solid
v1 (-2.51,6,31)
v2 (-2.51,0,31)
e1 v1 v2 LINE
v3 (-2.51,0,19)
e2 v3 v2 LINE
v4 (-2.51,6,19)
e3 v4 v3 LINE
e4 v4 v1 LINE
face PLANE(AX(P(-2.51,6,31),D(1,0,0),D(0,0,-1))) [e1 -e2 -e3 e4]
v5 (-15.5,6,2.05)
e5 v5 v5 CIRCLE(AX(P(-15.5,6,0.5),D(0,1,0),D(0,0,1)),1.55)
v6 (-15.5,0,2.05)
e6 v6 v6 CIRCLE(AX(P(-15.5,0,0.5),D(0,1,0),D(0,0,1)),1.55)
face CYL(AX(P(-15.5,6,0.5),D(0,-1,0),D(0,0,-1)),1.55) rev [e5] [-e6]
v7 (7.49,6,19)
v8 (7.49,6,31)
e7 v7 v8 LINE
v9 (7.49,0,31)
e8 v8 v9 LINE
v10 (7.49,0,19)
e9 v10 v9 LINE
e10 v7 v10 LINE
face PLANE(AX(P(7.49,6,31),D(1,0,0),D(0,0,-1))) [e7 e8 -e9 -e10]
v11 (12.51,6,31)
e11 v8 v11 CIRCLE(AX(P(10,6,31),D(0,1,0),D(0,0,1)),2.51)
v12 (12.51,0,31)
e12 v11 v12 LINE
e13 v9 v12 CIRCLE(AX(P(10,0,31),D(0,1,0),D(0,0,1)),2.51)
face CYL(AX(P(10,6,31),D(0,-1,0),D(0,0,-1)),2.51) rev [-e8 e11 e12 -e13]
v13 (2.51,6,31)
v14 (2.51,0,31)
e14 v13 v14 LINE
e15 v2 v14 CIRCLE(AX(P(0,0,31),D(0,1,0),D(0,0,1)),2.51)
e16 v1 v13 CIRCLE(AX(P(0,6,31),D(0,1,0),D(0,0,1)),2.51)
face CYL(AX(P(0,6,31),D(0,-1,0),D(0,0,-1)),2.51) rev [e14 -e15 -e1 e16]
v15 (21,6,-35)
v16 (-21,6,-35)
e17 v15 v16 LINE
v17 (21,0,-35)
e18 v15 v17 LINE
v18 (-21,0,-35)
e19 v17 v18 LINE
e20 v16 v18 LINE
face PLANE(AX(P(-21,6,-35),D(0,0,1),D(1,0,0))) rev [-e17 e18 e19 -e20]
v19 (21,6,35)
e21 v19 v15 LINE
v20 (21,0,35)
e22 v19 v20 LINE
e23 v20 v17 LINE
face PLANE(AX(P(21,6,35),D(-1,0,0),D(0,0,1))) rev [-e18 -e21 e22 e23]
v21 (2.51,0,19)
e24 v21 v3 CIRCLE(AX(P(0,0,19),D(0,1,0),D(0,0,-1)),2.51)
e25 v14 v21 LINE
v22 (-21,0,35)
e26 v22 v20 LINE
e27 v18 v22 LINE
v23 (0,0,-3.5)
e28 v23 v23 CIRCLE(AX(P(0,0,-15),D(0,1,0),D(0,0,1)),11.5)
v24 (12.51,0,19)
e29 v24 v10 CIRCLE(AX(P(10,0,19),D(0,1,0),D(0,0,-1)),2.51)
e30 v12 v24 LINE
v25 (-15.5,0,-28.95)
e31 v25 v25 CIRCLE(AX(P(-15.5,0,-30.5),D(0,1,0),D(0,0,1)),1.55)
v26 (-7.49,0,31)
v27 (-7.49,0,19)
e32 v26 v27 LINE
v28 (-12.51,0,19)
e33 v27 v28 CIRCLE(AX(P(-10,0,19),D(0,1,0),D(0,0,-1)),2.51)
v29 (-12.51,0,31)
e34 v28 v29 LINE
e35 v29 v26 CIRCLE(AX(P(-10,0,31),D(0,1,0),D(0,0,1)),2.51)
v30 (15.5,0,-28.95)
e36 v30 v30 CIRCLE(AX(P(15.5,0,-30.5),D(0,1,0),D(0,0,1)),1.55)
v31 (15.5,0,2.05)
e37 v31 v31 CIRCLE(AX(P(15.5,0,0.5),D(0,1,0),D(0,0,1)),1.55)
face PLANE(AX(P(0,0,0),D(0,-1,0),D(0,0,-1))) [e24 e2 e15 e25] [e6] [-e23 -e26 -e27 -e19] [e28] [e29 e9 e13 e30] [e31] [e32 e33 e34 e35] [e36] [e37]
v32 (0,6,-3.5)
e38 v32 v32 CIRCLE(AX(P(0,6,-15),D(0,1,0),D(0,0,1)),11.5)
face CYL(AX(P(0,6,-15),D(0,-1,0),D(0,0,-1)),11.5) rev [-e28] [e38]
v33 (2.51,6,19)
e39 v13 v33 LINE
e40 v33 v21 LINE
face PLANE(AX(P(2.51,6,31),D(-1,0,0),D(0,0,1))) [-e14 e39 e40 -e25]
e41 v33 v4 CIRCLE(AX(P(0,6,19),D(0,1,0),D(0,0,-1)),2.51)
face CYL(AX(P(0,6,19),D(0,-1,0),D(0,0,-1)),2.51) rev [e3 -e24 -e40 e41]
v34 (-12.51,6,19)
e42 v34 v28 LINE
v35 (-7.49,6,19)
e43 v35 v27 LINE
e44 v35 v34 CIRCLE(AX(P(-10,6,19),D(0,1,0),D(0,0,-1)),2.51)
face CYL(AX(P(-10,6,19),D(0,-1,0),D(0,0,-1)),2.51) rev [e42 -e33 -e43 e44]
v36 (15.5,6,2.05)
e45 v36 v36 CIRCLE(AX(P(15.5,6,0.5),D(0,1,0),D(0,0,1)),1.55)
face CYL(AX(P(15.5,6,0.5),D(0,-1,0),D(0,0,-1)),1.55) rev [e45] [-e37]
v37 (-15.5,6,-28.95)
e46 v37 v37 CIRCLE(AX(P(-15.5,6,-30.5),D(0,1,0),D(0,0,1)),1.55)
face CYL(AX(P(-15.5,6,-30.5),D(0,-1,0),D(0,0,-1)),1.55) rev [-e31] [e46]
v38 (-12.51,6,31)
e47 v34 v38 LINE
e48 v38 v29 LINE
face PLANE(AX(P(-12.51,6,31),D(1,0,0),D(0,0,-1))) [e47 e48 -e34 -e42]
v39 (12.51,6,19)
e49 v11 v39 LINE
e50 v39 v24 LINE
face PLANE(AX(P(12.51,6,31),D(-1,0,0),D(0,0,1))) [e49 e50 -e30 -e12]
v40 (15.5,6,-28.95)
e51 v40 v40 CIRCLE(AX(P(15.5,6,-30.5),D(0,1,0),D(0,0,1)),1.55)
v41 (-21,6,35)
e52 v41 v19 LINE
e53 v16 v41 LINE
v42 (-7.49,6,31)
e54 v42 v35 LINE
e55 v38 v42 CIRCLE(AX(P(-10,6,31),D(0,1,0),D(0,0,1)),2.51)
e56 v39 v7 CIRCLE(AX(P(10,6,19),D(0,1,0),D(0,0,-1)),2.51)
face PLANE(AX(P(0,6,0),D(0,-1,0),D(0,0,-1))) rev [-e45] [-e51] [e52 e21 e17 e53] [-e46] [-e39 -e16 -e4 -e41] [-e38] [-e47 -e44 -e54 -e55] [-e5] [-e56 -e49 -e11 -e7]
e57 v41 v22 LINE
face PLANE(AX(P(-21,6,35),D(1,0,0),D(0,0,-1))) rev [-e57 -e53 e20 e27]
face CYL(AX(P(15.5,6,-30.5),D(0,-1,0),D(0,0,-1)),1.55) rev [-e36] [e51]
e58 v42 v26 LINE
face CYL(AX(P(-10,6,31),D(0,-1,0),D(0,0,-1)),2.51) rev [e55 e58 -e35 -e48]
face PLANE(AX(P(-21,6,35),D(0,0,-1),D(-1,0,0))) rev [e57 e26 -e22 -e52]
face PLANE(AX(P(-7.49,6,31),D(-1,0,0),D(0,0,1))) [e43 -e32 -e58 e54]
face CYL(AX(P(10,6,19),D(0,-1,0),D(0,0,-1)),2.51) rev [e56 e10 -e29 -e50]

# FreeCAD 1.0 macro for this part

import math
import FreeCAD as App
import Part
import Sketcher


def add_polygon(sketch, points):
    """Adds a closed chain of lines whose ends are joined by coincident constraints."""
    first, n = sketch.GeometryCount, len(points)
    for a, b in zip(points, points[1:] + points[:1]):
        sketch.addGeometry(Part.LineSegment(App.Vector(*a, 0), App.Vector(*b, 0)), False)
    for i in range(n):
        sketch.addConstraint(Sketcher.Constraint("Coincident", first + i, 2, first + (i + 1) % n, 1))

doc = App.newDocument("Part")
body = doc.addObject("PartDesign::Body", "Body")

sketch1 = body.newObject("Sketcher::SketchObject", "Sketch")
sketch1.AttachmentSupport = (doc.getObject("XZ_Plane"), [""])
sketch1.MapMode = "FlatFace"
add_polygon(sketch1, [(-21, -35), (-21, 35), (21, 35), (21, -35)])
sketch1.addGeometry(Part.LineSegment(App.Vector(-7.5, 19, 0), App.Vector(-7.5, 31, 0)), False)
sketch1.addGeometry(Part.ArcOfCircle(Part.Circle(App.Vector(-10, 31, 0), App.Vector(0, 0, 1), 2.5), math.radians(0), math.radians(180)), False)
sketch1.addGeometry(Part.LineSegment(App.Vector(-12.5, 31, 0), App.Vector(-12.5, 19, 0)), False)
sketch1.addGeometry(Part.ArcOfCircle(Part.Circle(App.Vector(-10, 19, 0), App.Vector(0, 0, 1), 2.5), math.radians(180), math.radians(360)), False)
sketch1.addGeometry(Part.ArcOfCircle(Part.Circle(App.Vector(0, 31, 0), App.Vector(0, 0, 1), 2.5), math.radians(0), math.radians(180)), False)
sketch1.addGeometry(Part.LineSegment(App.Vector(-2.5, 31, 0), App.Vector(-2.5, 19, 0)), False)
sketch1.addGeometry(Part.ArcOfCircle(Part.Circle(App.Vector(0, 19, 0), App.Vector(0, 0, 1), 2.5), math.radians(180), math.radians(360)), False)
sketch1.addGeometry(Part.LineSegment(App.Vector(2.5, 19, 0), App.Vector(2.5, 31, 0)), False)
sketch1.addGeometry(Part.ArcOfCircle(Part.Circle(App.Vector(10, 31, 0), App.Vector(0, 0, 1), 2.5), math.radians(0), math.radians(180)), False)
sketch1.addGeometry(Part.LineSegment(App.Vector(7.5, 31, 0), App.Vector(7.5, 19, 0)), False)
sketch1.addGeometry(Part.ArcOfCircle(Part.Circle(App.Vector(10, 19, 0), App.Vector(0, 0, 1), 2.5), math.radians(180), math.radians(360)), False)
sketch1.addGeometry(Part.LineSegment(App.Vector(12.5, 19, 0), App.Vector(12.5, 31, 0)), False)
sketch1.addGeometry(Part.Circle(App.Vector(-15.5, 0.5, 0), App.Vector(0, 0, 1), 1.6), False)
sketch1.addGeometry(Part.Circle(App.Vector(-15.5, -30.5, 0), App.Vector(0, 0, 1), 1.6), False)
sketch1.addGeometry(Part.Circle(App.Vector(0, -15, 0), App.Vector(0, 0, 1), 11.5), False)
sketch1.addGeometry(Part.Circle(App.Vector(15.5, 0.5, 0), App.Vector(0, 0, 1), 1.6), False)
sketch1.addGeometry(Part.Circle(App.Vector(15.5, -30.5, 0), App.Vector(0, 0, 1), 1.6), False)
sketch1.addConstraint(Sketcher.Constraint("Tangent", 4, 2, 5, 1))
sketch1.addConstraint(Sketcher.Constraint("Tangent", 5, 2, 6, 1))
sketch1.addConstraint(Sketcher.Constraint("Tangent", 6, 2, 7, 1))
sketch1.addConstraint(Sketcher.Constraint("Tangent", 7, 2, 4, 1))
sketch1.addConstraint(Sketcher.Constraint("Tangent", 8, 2, 9, 1))
sketch1.addConstraint(Sketcher.Constraint("Tangent", 9, 2, 10, 1))
sketch1.addConstraint(Sketcher.Constraint("Tangent", 10, 2, 11, 1))
sketch1.addConstraint(Sketcher.Constraint("Tangent", 11, 2, 8, 1))
sketch1.addConstraint(Sketcher.Constraint("Tangent", 12, 2, 13, 1))
sketch1.addConstraint(Sketcher.Constraint("Tangent", 13, 2, 14, 1))
sketch1.addConstraint(Sketcher.Constraint("Tangent", 14, 2, 15, 1))
sketch1.addConstraint(Sketcher.Constraint("Tangent", 15, 2, 12, 1))
sketch1.addConstraint(Sketcher.Constraint("Vertical", 0))
sketch1.addConstraint(Sketcher.Constraint("Horizontal", 1))
sketch1.addConstraint(Sketcher.Constraint("Vertical", 2))
sketch1.addConstraint(Sketcher.Constraint("Horizontal", 3))
sketch1.addConstraint(Sketcher.Constraint("Vertical", 4))
sketch1.addConstraint(Sketcher.Constraint("Vertical", 6))
sketch1.addConstraint(Sketcher.Constraint("Vertical", 9))
sketch1.addConstraint(Sketcher.Constraint("Vertical", 11))
sketch1.addConstraint(Sketcher.Constraint("Vertical", 13))
sketch1.addConstraint(Sketcher.Constraint("Vertical", 15))
sketch1.addConstraint(Sketcher.Constraint("Equal", 7, 8))
sketch1.addConstraint(Sketcher.Constraint("Equal", 10, 12))
sketch1.addConstraint(Sketcher.Constraint("Equal", 16, 17))
sketch1.addConstraint(Sketcher.Constraint("Equal", 17, 19))
sketch1.addConstraint(Sketcher.Constraint("Equal", 19, 20))
sketch1.addConstraint(Sketcher.Constraint("Symmetric", 0, 2, 2, 2, -1, 1))
sketch1.addConstraint(Sketcher.Constraint("Symmetric", 5, 3, 12, 3, -2))
sketch1.addConstraint(Sketcher.Constraint("Symmetric", 16, 3, 19, 3, -2))
sketch1.addConstraint(Sketcher.Constraint("Symmetric", 17, 3, 20, 3, -2))
sketch1.addConstraint(Sketcher.Constraint("PointOnObject", 8, 3, -2))
sketch1.addConstraint(Sketcher.Constraint("PointOnObject", 18, 3, -2))
sketch1.addConstraint(Sketcher.Constraint("Horizontal", 5, 3, 8, 3))
sketch1.addConstraint(Sketcher.Constraint("Horizontal", 7, 3, 10, 3))
sketch1.addConstraint(Sketcher.Constraint("Horizontal", 10, 3, 14, 3))
sketch1.addConstraint(Sketcher.Constraint("Vertical", 16, 3, 17, 3))
sketch1.addConstraint(Sketcher.Constraint("Diameter", 18, 23.0))
sketch1.addConstraint(Sketcher.Constraint("Diameter", 16, 3.1))
sketch1.addConstraint(Sketcher.Constraint("DistanceX", 1, 1, 1, 2, 42.0))
sketch1.addConstraint(Sketcher.Constraint("DistanceY", 0, 1, 0, 2, 70.0))
sketch1.addConstraint(Sketcher.Constraint("DistanceY", 4, 1, 4, 2, 12.0))
sketch1.addConstraint(Sketcher.Constraint("Radius", 5, 2.51))
sketch1.addConstraint(Sketcher.Constraint("DistanceX", 5, 3, -1, 1, 10.0))
sketch1.addConstraint(Sketcher.Constraint("DistanceY", -1, 1, 5, 3, 31.0))
sketch1.addConstraint(Sketcher.Constraint("DistanceY", 18, 3, -1, 1, 15.0))
sketch1.addConstraint(Sketcher.Constraint("DistanceY", 17, 3, 16, 3, 31.0))
sketch1.addConstraint(Sketcher.Constraint("DistanceX", 16, 3, 19, 3, 31.0))
sketch1.addConstraint(Sketcher.Constraint("DistanceY", -1, 1, 16, 3, 0.5))
pad1 = body.newObject("PartDesign::Pad", "Pad")
pad1.Profile = sketch1
pad1.Length = 6
pad1.Reversed = True

doc.recompute()
